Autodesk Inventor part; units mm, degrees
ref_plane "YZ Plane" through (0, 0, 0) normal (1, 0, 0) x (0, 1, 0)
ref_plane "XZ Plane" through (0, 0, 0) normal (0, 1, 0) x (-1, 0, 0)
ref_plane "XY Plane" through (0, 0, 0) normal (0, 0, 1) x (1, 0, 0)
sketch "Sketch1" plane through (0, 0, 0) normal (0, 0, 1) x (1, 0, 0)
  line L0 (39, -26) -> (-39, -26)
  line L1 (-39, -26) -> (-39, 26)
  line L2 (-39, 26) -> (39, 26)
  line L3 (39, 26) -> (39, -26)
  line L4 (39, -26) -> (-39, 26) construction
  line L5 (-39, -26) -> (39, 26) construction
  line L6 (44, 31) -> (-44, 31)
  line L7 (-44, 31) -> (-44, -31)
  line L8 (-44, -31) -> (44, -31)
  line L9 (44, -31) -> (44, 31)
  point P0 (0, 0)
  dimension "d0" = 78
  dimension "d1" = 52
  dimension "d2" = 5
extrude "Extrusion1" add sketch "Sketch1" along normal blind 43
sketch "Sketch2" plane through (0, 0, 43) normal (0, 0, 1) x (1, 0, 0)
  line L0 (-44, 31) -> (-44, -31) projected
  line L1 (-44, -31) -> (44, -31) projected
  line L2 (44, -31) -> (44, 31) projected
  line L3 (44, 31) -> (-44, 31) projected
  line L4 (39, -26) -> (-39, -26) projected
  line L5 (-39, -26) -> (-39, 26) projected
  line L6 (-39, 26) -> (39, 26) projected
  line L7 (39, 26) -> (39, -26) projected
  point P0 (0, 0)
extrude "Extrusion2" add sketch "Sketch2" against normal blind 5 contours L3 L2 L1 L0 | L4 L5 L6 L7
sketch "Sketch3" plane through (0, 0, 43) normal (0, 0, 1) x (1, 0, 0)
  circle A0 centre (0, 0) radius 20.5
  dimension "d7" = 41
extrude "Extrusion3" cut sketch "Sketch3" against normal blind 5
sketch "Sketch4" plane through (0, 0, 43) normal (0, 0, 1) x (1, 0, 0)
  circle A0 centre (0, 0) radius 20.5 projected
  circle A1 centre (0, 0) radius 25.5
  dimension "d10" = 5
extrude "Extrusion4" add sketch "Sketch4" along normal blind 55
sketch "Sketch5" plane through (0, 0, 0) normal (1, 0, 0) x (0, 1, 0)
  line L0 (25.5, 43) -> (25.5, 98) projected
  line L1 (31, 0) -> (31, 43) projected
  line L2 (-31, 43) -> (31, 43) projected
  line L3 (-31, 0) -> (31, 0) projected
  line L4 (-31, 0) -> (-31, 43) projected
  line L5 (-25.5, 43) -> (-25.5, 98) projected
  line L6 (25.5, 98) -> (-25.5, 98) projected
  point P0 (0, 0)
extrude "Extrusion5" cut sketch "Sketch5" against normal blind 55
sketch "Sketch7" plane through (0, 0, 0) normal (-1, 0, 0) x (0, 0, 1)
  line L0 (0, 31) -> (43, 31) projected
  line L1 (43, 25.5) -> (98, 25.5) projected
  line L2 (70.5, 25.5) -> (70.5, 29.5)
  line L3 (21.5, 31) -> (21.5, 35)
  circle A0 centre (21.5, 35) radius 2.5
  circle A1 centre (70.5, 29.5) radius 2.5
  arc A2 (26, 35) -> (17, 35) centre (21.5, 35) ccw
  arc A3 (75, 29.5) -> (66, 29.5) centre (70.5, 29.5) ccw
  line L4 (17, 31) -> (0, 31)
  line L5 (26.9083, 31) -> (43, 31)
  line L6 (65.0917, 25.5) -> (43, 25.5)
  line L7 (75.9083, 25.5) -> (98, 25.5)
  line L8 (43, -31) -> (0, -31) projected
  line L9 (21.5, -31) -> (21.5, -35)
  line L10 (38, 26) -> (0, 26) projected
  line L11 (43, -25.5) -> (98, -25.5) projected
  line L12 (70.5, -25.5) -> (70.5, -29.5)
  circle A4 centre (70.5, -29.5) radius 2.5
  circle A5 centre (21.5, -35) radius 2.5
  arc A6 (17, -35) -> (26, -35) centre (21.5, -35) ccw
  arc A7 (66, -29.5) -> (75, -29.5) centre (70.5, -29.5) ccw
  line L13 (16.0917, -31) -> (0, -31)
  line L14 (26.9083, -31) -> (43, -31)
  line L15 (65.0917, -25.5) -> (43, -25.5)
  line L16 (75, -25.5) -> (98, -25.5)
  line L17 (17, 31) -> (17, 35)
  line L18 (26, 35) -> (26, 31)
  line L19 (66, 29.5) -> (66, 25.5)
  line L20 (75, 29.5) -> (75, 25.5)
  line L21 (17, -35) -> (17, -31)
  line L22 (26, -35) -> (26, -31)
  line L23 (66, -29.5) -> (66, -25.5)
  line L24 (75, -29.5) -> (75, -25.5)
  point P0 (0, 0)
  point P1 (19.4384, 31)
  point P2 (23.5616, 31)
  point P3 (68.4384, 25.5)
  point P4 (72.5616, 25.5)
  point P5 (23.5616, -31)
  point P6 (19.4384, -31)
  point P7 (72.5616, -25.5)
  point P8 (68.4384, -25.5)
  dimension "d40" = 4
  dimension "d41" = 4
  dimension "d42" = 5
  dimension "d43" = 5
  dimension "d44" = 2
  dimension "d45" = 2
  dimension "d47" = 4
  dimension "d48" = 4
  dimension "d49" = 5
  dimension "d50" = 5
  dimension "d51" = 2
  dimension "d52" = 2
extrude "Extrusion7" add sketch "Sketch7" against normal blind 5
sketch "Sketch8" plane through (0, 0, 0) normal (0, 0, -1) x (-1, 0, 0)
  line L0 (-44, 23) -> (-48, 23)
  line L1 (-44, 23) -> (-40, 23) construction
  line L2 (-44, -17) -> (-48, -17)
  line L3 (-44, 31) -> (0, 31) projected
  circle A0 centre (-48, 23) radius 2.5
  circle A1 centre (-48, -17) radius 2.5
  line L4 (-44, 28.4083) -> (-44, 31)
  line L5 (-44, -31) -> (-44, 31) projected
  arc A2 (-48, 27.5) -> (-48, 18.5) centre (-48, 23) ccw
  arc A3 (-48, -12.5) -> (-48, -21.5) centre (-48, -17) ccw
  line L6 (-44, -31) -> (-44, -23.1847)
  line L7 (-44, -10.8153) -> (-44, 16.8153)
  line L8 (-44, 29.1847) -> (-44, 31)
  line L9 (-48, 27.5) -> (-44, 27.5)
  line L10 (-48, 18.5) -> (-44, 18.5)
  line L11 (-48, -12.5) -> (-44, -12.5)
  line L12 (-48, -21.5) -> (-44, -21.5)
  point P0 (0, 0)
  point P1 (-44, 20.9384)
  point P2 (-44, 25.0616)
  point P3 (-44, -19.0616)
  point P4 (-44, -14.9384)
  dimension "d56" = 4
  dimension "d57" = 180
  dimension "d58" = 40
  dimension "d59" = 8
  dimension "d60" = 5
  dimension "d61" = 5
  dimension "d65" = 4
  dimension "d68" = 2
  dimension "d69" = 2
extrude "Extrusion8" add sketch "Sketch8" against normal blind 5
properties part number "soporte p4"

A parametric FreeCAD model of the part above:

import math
import FreeCAD as App
import Part
import Sketcher


def add_polygon(sketch, points):
    """Adds a closed chain of lines whose ends are joined by coincident constraints."""
    first, n = sketch.GeometryCount, len(points)
    for a, b in zip(points, points[1:] + points[:1]):
        sketch.addGeometry(Part.LineSegment(App.Vector(*a, 0), App.Vector(*b, 0)), False)
    for i in range(n):
        sketch.addConstraint(Sketcher.Constraint("Coincident", first + i, 2, first + (i + 1) % n, 1))

doc = App.newDocument("Part")
body = doc.addObject("PartDesign::Body", "Body")
body.AllowCompound = True

# Sketch on XY plane
sketch1 = body.newObject("Sketcher::SketchObject", "Sketch")
sketch1.AttachmentSupport = (doc.getObject("XY_Plane"), [""])
sketch1.MapMode = "FlatFace"
add_polygon(sketch1, [(44, -31), (44, 31), (-44, 31), (-44, -31)])  # lines 0-3
add_polygon(sketch1, [(39, 26), (39, -26), (-39, -26), (-39, 26)])  # lines 4-7
sketch1.addConstraint([
    Sketcher.Constraint("Vertical", 0),
    Sketcher.Constraint("Horizontal", 1),
    Sketcher.Constraint("Vertical", 2),
    Sketcher.Constraint("Horizontal", 3),
    Sketcher.Constraint("Vertical", 4),
    Sketcher.Constraint("Horizontal", 5),
    Sketcher.Constraint("Vertical", 6),
    Sketcher.Constraint("Horizontal", 7),
    Sketcher.Constraint("Symmetric", 0, 2, 2, 2, -1, 1),
    Sketcher.Constraint("Symmetric", 4, 2, 6, 2, -1, 1),
    Sketcher.Constraint("DistanceX", 5, 2, 5, 1, 78.0),
    Sketcher.Constraint("DistanceY", 4, 2, 4, 1, 52.0),
    Sketcher.Constraint("DistanceX", 4, 2, 3, 2, 5.0),
    Sketcher.Constraint("DistanceY", 3, 2, 4, 2, 5.0),
])
pad1 = body.newObject("PartDesign::Pad", "Pad")
pad1.Profile = sketch1
pad1.Length = 43

# Sketch on XY plane
sketch2 = body.newObject("Sketcher::SketchObject", "Sketch001")
sketch2.AttachmentSupport = (doc.getObject("XY_Plane"), [""])
sketch2.MapMode = "FlatFace"
sketch2.AttachmentOffset = App.Placement(App.Vector(0, 0, 43), App.Rotation())
add_polygon(sketch2, [(44, 31), (-44, 31), (-44, -31), (44, -31)])  # lines 0-3
sketch2.addConstraint([
    Sketcher.Constraint("Horizontal", 0),
    Sketcher.Constraint("Vertical", 1),
    Sketcher.Constraint("Horizontal", 2),
    Sketcher.Constraint("Vertical", 3),
    Sketcher.Constraint("Symmetric", 0, 2, 2, 2, -1, 1),
    Sketcher.Constraint("DistanceX", 0, 2, 0, 1, 88.0),
    Sketcher.Constraint("DistanceY", 1, 2, 1, 1, 62.0),
])
pad2 = body.newObject("PartDesign::Pad", "Pad001")
pad2.Profile = sketch2
pad2.Length = 5
pad2.Reversed = True

# Sketch on XY plane
sketch3 = body.newObject("Sketcher::SketchObject", "Sketch002")
sketch3.AttachmentSupport = (doc.getObject("XY_Plane"), [""])
sketch3.MapMode = "FlatFace"
sketch3.AttachmentOffset = App.Placement(App.Vector(0, 0, 43), App.Rotation())
sketch3.addGeometry(Part.Circle(App.Vector(0, 0, 0), App.Vector(0, 0, 1), 20.5), False)
sketch3.addConstraint([
    Sketcher.Constraint("Coincident", 0, 3, -1, 1),
    Sketcher.Constraint("Diameter", 0, 41.0),
])
pocket1 = body.newObject("PartDesign::Pocket", "Pocket")
pocket1.Profile = sketch3
pocket1.Length = 5

# Sketch on XY plane
sketch4 = body.newObject("Sketcher::SketchObject", "Sketch003")
sketch4.AttachmentSupport = (doc.getObject("XY_Plane"), [""])
sketch4.MapMode = "FlatFace"
sketch4.AttachmentOffset = App.Placement(App.Vector(0, 0, 43), App.Rotation())
sketch4.addGeometry([
    Part.Circle(App.Vector(0, 0, 0), App.Vector(0, 0, 1), 25.5),
    Part.Circle(App.Vector(0, 0, 0), App.Vector(0, 0, 1), 20.5),
], False)
sketch4.addConstraint([
    Sketcher.Constraint("Coincident", 0, 3, -1, 1),
    Sketcher.Constraint("Coincident", 1, 3, -1, 1),
    Sketcher.Constraint("Diameter", 0, 51.0),
    Sketcher.Constraint("Diameter", 1, 41.0),
])
pad3 = body.newObject("PartDesign::Pad", "Pad002")
pad3.Profile = sketch4
pad3.Length = 55

# Sketch on YZ plane
sketch5 = body.newObject("Sketcher::SketchObject", "Sketch004")
sketch5.AttachmentSupport = (doc.getObject("YZ_Plane"), [""])
sketch5.MapMode = "FlatFace"
add_polygon(sketch5, [(-25.5, 98), (-25.5, 43), (-31, 43), (-31, 0), (31, 0), (31, 43), (25.5, 43), (25.5, 98)])  # lines 0-7
sketch5.addConstraint([
    Sketcher.Constraint("Vertical", 0),
    Sketcher.Constraint("Horizontal", 1),
    Sketcher.Constraint("Vertical", 2),
    Sketcher.Constraint("Horizontal", 3),
    Sketcher.Constraint("Vertical", 4),
    Sketcher.Constraint("Horizontal", 5),
    Sketcher.Constraint("Vertical", 6),
    Sketcher.Constraint("Horizontal", 7),
    Sketcher.Constraint("Symmetric", 2, 2, 3, 2, -1, 1),
    Sketcher.Constraint("Symmetric", 0, 2, 5, 2, -2),
    Sketcher.Constraint("DistanceX", 3, 1, 3, 2, 62.0),
    Sketcher.Constraint("DistanceX", 7, 2, 7, 1, 51.0),
    Sketcher.Constraint("DistanceY", 0, 2, 0, 1, 55.0),
    Sketcher.Constraint("DistanceY", 2, 2, 2, 1, 43.0),
])
pocket2 = body.newObject("PartDesign::Pocket", "Pocket001")
pocket2.Profile = sketch5
pocket2.Length = 55

# Sketch on YZ plane
sketch6 = body.newObject("Sketcher::SketchObject", "Sketch005")
sketch6.AttachmentSupport = (doc.getObject("YZ_Plane"), [""])
sketch6.MapMode = "FlatFace"
sketch6.addGeometry([
    Part.LineSegment(App.Vector(35, 17, 0), App.Vector(31, 17, 0)),  # 0
    Part.LineSegment(App.Vector(31, 17, 0), App.Vector(31, 21.5, 0)),  # 1
    Part.LineSegment(App.Vector(31, 21.5, 0), App.Vector(31, 26, 0)),  # 2
    Part.LineSegment(App.Vector(31, 26, 0), App.Vector(35, 26, 0)),  # 3
    Part.ArcOfCircle(Part.Circle(App.Vector(35, 21.5, 0), App.Vector(0, 0, 1), 4.5), math.radians(-90), math.radians(90)),  # 4
    Part.Circle(App.Vector(35, 21.5, 0), App.Vector(0, 0, 1), 2.5),  # 5
    Part.LineSegment(App.Vector(29.5, 66, 0), App.Vector(25.5, 66, 0)),  # 6
    Part.LineSegment(App.Vector(25.5, 66, 0), App.Vector(25.5, 70.5, 0)),  # 7
    Part.LineSegment(App.Vector(25.5, 70.5, 0), App.Vector(25.5, 75, 0)),  # 8
    Part.LineSegment(App.Vector(25.5, 75, 0), App.Vector(29.5, 75, 0)),  # 9
    Part.ArcOfCircle(Part.Circle(App.Vector(29.5, 70.5, 0), App.Vector(0, 0, 1), 4.5), math.radians(-90), math.radians(90)),  # 10
    Part.Circle(App.Vector(29.5, 70.5, 0), App.Vector(0, 0, 1), 2.5),  # 11
    Part.LineSegment(App.Vector(-35, 26, 0), App.Vector(-31, 26, 0)),  # 12
    Part.LineSegment(App.Vector(-31, 26, 0), App.Vector(-31, 21.5, 0)),  # 13
    Part.LineSegment(App.Vector(-31, 21.5, 0), App.Vector(-31, 17, 0)),  # 14
    Part.LineSegment(App.Vector(-31, 17, 0), App.Vector(-35, 17, 0)),  # 15
    Part.ArcOfCircle(Part.Circle(App.Vector(-35, 21.5, 0), App.Vector(0, 0, 1), 4.5), math.radians(90), math.radians(270)),  # 16
    Part.Circle(App.Vector(-35, 21.5, 0), App.Vector(0, 0, 1), 2.5),  # 17
    Part.LineSegment(App.Vector(-25.5, 70.5, 0), App.Vector(-25.5, 66, 0)),  # 18
    Part.LineSegment(App.Vector(-25.5, 66, 0), App.Vector(-29.5, 66, 0)),  # 19
    Part.ArcOfCircle(Part.Circle(App.Vector(-29.5, 70.5, 0), App.Vector(0, 0, 1), 4.5), math.radians(90), math.radians(270)),  # 20
    Part.LineSegment(App.Vector(-29.5, 75, 0), App.Vector(-25.5, 75, 0)),  # 21
    Part.LineSegment(App.Vector(-25.5, 75, 0), App.Vector(-25.5, 70.5, 0)),  # 22
    Part.Circle(App.Vector(-29.5, 70.5, 0), App.Vector(0, 0, 1), 2.5),  # 23
], False)
sketch6.addConstraint([
    Sketcher.Constraint("Coincident", 0, 2, 1, 1),
    Sketcher.Constraint("Coincident", 1, 2, 2, 1),
    Sketcher.Constraint("Coincident", 2, 2, 3, 1),
    Sketcher.Constraint("Tangent", 3, 2, 4, 2),
    Sketcher.Constraint("Tangent", 4, 1, 0, 1),
    Sketcher.Constraint("Coincident", 6, 2, 7, 1),
    Sketcher.Constraint("Coincident", 7, 2, 8, 1),
    Sketcher.Constraint("Coincident", 8, 2, 9, 1),
    Sketcher.Constraint("Tangent", 9, 2, 10, 2),
    Sketcher.Constraint("Tangent", 10, 1, 6, 1),
    Sketcher.Constraint("Coincident", 12, 2, 13, 1),
    Sketcher.Constraint("Coincident", 13, 2, 14, 1),
    Sketcher.Constraint("Coincident", 14, 2, 15, 1),
    Sketcher.Constraint("Tangent", 15, 2, 16, 2),
    Sketcher.Constraint("Tangent", 16, 1, 12, 1),
    Sketcher.Constraint("Coincident", 18, 2, 19, 1),
    Sketcher.Constraint("Tangent", 19, 2, 20, 2),
    Sketcher.Constraint("Tangent", 20, 1, 21, 1),
    Sketcher.Constraint("Coincident", 21, 2, 22, 1),
    Sketcher.Constraint("Coincident", 22, 2, 18, 1),
    Sketcher.Constraint("Horizontal", 0),
    Sketcher.Constraint("Vertical", 1),
    Sketcher.Constraint("Vertical", 2),
    Sketcher.Constraint("Horizontal", 3),
    Sketcher.Constraint("Horizontal", 6),
    Sketcher.Constraint("Vertical", 7),
    Sketcher.Constraint("Vertical", 8),
    Sketcher.Constraint("Horizontal", 9),
    Sketcher.Constraint("Horizontal", 12),
    Sketcher.Constraint("Vertical", 13),
    Sketcher.Constraint("Vertical", 14),
    Sketcher.Constraint("Horizontal", 15),
    Sketcher.Constraint("Vertical", 18),
    Sketcher.Constraint("Horizontal", 19),
    Sketcher.Constraint("Horizontal", 21),
    Sketcher.Constraint("Vertical", 22),
    Sketcher.Constraint("Coincident", 5, 3, 4, 3),
    Sketcher.Constraint("Coincident", 11, 3, 10, 3),
    Sketcher.Constraint("Coincident", 17, 3, 16, 3),
    Sketcher.Constraint("Coincident", 23, 3, 20, 3),
    Sketcher.Constraint("Equal", 4, 10),
    Sketcher.Constraint("Equal", 5, 11),
    Sketcher.Constraint("Equal", 10, 16),
    Sketcher.Constraint("Equal", 11, 17),
    Sketcher.Constraint("Equal", 16, 20),
    Sketcher.Constraint("Equal", 17, 23),
    Sketcher.Constraint("Symmetric", 4, 3, 16, 3, -2),
    Sketcher.Constraint("Symmetric", 10, 3, 20, 3, -2),
    Sketcher.Constraint("Symmetric", 1, 2, 13, 2, -2),
    Sketcher.Constraint("Symmetric", 7, 2, 22, 2, -2),
    Sketcher.Constraint("Horizontal", 17, 3, 1, 2),
    Sketcher.Constraint("Horizontal", 23, 3, 7, 2),
    Sketcher.Constraint("Equal", 3, 6),
    Sketcher.Constraint("Diameter", 5, 5.0),
    Sketcher.Constraint("DistanceX", 0, 2, 0, 1, 4.0),
    Sketcher.Constraint("Radius", 4, 4.5),
    Sketcher.Constraint("DistanceX", -1, 1, 4, 3, 35.0),
    Sketcher.Constraint("DistanceY", -1, 1, 0, 2, 17.0),
    Sketcher.Constraint("DistanceY", -1, 1, 6, 2, 66.0),
    Sketcher.Constraint("DistanceX", 20, 3, 10, 3, 59.0),
])
pad4 = body.newObject("PartDesign::Pad", "Pad003")
pad4.Profile = sketch6
pad4.Length = 5

# Sketch on XY plane
sketch7 = body.newObject("Sketcher::SketchObject", "Sketch006")
sketch7.AttachmentSupport = (doc.getObject("XY_Plane"), [""])
sketch7.MapMode = "FlatFace"
sketch7.addGeometry([
    Part.LineSegment(App.Vector(44, -17, 0), App.Vector(44, -12.5, 0)),  # 0
    Part.LineSegment(App.Vector(44, -12.5, 0), App.Vector(48, -12.5, 0)),  # 1
    Part.ArcOfCircle(Part.Circle(App.Vector(48, -17, 0), App.Vector(0, 0, 1), 4.5), math.radians(-90), math.radians(90)),  # 2
    Part.LineSegment(App.Vector(48, -21.5, 0), App.Vector(44, -21.5, 0)),  # 3
    Part.LineSegment(App.Vector(44, -21.5, 0), App.Vector(44, -17, 0)),  # 4
    Part.Circle(App.Vector(48, -17, 0), App.Vector(0, 0, 1), 2.5),  # 5
    Part.LineSegment(App.Vector(44, 18.5, 0), App.Vector(44, 23, 0)),  # 6
    Part.LineSegment(App.Vector(44, 23, 0), App.Vector(44, 27.5, 0)),  # 7
    Part.LineSegment(App.Vector(44, 27.5, 0), App.Vector(48, 27.5, 0)),  # 8
    Part.ArcOfCircle(Part.Circle(App.Vector(48, 23, 0), App.Vector(0, 0, 1), 4.5), math.radians(-90), math.radians(90)),  # 9
    Part.LineSegment(App.Vector(48, 18.5, 0), App.Vector(44, 18.5, 0)),  # 10
    Part.Circle(App.Vector(48, 23, 0), App.Vector(0, 0, 1), 2.5),  # 11
], False)
sketch7.addConstraint([
    Sketcher.Constraint("Coincident", 0, 2, 1, 1),
    Sketcher.Constraint("Tangent", 1, 2, 2, 2),
    Sketcher.Constraint("Tangent", 2, 1, 3, 1),
    Sketcher.Constraint("Coincident", 3, 2, 4, 1),
    Sketcher.Constraint("Coincident", 4, 2, 0, 1),
    Sketcher.Constraint("Coincident", 6, 2, 7, 1),
    Sketcher.Constraint("Coincident", 7, 2, 8, 1),
    Sketcher.Constraint("Tangent", 8, 2, 9, 2),
    Sketcher.Constraint("Tangent", 9, 1, 10, 1),
    Sketcher.Constraint("Coincident", 10, 2, 6, 1),
    Sketcher.Constraint("Vertical", 0),
    Sketcher.Constraint("Horizontal", 1),
    Sketcher.Constraint("Horizontal", 3),
    Sketcher.Constraint("Vertical", 4),
    Sketcher.Constraint("Vertical", 6),
    Sketcher.Constraint("Vertical", 7),
    Sketcher.Constraint("Horizontal", 8),
    Sketcher.Constraint("Horizontal", 10),
    Sketcher.Constraint("Coincident", 5, 3, 2, 3),
    Sketcher.Constraint("Coincident", 11, 3, 9, 3),
    Sketcher.Constraint("Equal", 2, 9),
    Sketcher.Constraint("Equal", 5, 11),
    Sketcher.Constraint("Horizontal", 5, 3, 4, 2),
    Sketcher.Constraint("Horizontal", 11, 3, 6, 2),
    Sketcher.Constraint("Vertical", 5, 3, 9, 3),
    Sketcher.Constraint("Vertical", 4, 2, 6, 2),
    Sketcher.Constraint("Diameter", 5, 5.0),
    Sketcher.Constraint("DistanceX", 1, 1, 1, 2, 4.0),
    Sketcher.Constraint("DistanceY", 2, 3, 9, 3, 40.0),
    Sketcher.Constraint("Radius", 2, 4.5),
    Sketcher.Constraint("DistanceX", -1, 1, 2, 3, 48.0),
    Sketcher.Constraint("DistanceY", 2, 3, -1, 1, 17.0),
])
pad5 = body.newObject("PartDesign::Pad", "Pad004")
pad5.Profile = sketch7
pad5.Length = 5

doc.recompute()
